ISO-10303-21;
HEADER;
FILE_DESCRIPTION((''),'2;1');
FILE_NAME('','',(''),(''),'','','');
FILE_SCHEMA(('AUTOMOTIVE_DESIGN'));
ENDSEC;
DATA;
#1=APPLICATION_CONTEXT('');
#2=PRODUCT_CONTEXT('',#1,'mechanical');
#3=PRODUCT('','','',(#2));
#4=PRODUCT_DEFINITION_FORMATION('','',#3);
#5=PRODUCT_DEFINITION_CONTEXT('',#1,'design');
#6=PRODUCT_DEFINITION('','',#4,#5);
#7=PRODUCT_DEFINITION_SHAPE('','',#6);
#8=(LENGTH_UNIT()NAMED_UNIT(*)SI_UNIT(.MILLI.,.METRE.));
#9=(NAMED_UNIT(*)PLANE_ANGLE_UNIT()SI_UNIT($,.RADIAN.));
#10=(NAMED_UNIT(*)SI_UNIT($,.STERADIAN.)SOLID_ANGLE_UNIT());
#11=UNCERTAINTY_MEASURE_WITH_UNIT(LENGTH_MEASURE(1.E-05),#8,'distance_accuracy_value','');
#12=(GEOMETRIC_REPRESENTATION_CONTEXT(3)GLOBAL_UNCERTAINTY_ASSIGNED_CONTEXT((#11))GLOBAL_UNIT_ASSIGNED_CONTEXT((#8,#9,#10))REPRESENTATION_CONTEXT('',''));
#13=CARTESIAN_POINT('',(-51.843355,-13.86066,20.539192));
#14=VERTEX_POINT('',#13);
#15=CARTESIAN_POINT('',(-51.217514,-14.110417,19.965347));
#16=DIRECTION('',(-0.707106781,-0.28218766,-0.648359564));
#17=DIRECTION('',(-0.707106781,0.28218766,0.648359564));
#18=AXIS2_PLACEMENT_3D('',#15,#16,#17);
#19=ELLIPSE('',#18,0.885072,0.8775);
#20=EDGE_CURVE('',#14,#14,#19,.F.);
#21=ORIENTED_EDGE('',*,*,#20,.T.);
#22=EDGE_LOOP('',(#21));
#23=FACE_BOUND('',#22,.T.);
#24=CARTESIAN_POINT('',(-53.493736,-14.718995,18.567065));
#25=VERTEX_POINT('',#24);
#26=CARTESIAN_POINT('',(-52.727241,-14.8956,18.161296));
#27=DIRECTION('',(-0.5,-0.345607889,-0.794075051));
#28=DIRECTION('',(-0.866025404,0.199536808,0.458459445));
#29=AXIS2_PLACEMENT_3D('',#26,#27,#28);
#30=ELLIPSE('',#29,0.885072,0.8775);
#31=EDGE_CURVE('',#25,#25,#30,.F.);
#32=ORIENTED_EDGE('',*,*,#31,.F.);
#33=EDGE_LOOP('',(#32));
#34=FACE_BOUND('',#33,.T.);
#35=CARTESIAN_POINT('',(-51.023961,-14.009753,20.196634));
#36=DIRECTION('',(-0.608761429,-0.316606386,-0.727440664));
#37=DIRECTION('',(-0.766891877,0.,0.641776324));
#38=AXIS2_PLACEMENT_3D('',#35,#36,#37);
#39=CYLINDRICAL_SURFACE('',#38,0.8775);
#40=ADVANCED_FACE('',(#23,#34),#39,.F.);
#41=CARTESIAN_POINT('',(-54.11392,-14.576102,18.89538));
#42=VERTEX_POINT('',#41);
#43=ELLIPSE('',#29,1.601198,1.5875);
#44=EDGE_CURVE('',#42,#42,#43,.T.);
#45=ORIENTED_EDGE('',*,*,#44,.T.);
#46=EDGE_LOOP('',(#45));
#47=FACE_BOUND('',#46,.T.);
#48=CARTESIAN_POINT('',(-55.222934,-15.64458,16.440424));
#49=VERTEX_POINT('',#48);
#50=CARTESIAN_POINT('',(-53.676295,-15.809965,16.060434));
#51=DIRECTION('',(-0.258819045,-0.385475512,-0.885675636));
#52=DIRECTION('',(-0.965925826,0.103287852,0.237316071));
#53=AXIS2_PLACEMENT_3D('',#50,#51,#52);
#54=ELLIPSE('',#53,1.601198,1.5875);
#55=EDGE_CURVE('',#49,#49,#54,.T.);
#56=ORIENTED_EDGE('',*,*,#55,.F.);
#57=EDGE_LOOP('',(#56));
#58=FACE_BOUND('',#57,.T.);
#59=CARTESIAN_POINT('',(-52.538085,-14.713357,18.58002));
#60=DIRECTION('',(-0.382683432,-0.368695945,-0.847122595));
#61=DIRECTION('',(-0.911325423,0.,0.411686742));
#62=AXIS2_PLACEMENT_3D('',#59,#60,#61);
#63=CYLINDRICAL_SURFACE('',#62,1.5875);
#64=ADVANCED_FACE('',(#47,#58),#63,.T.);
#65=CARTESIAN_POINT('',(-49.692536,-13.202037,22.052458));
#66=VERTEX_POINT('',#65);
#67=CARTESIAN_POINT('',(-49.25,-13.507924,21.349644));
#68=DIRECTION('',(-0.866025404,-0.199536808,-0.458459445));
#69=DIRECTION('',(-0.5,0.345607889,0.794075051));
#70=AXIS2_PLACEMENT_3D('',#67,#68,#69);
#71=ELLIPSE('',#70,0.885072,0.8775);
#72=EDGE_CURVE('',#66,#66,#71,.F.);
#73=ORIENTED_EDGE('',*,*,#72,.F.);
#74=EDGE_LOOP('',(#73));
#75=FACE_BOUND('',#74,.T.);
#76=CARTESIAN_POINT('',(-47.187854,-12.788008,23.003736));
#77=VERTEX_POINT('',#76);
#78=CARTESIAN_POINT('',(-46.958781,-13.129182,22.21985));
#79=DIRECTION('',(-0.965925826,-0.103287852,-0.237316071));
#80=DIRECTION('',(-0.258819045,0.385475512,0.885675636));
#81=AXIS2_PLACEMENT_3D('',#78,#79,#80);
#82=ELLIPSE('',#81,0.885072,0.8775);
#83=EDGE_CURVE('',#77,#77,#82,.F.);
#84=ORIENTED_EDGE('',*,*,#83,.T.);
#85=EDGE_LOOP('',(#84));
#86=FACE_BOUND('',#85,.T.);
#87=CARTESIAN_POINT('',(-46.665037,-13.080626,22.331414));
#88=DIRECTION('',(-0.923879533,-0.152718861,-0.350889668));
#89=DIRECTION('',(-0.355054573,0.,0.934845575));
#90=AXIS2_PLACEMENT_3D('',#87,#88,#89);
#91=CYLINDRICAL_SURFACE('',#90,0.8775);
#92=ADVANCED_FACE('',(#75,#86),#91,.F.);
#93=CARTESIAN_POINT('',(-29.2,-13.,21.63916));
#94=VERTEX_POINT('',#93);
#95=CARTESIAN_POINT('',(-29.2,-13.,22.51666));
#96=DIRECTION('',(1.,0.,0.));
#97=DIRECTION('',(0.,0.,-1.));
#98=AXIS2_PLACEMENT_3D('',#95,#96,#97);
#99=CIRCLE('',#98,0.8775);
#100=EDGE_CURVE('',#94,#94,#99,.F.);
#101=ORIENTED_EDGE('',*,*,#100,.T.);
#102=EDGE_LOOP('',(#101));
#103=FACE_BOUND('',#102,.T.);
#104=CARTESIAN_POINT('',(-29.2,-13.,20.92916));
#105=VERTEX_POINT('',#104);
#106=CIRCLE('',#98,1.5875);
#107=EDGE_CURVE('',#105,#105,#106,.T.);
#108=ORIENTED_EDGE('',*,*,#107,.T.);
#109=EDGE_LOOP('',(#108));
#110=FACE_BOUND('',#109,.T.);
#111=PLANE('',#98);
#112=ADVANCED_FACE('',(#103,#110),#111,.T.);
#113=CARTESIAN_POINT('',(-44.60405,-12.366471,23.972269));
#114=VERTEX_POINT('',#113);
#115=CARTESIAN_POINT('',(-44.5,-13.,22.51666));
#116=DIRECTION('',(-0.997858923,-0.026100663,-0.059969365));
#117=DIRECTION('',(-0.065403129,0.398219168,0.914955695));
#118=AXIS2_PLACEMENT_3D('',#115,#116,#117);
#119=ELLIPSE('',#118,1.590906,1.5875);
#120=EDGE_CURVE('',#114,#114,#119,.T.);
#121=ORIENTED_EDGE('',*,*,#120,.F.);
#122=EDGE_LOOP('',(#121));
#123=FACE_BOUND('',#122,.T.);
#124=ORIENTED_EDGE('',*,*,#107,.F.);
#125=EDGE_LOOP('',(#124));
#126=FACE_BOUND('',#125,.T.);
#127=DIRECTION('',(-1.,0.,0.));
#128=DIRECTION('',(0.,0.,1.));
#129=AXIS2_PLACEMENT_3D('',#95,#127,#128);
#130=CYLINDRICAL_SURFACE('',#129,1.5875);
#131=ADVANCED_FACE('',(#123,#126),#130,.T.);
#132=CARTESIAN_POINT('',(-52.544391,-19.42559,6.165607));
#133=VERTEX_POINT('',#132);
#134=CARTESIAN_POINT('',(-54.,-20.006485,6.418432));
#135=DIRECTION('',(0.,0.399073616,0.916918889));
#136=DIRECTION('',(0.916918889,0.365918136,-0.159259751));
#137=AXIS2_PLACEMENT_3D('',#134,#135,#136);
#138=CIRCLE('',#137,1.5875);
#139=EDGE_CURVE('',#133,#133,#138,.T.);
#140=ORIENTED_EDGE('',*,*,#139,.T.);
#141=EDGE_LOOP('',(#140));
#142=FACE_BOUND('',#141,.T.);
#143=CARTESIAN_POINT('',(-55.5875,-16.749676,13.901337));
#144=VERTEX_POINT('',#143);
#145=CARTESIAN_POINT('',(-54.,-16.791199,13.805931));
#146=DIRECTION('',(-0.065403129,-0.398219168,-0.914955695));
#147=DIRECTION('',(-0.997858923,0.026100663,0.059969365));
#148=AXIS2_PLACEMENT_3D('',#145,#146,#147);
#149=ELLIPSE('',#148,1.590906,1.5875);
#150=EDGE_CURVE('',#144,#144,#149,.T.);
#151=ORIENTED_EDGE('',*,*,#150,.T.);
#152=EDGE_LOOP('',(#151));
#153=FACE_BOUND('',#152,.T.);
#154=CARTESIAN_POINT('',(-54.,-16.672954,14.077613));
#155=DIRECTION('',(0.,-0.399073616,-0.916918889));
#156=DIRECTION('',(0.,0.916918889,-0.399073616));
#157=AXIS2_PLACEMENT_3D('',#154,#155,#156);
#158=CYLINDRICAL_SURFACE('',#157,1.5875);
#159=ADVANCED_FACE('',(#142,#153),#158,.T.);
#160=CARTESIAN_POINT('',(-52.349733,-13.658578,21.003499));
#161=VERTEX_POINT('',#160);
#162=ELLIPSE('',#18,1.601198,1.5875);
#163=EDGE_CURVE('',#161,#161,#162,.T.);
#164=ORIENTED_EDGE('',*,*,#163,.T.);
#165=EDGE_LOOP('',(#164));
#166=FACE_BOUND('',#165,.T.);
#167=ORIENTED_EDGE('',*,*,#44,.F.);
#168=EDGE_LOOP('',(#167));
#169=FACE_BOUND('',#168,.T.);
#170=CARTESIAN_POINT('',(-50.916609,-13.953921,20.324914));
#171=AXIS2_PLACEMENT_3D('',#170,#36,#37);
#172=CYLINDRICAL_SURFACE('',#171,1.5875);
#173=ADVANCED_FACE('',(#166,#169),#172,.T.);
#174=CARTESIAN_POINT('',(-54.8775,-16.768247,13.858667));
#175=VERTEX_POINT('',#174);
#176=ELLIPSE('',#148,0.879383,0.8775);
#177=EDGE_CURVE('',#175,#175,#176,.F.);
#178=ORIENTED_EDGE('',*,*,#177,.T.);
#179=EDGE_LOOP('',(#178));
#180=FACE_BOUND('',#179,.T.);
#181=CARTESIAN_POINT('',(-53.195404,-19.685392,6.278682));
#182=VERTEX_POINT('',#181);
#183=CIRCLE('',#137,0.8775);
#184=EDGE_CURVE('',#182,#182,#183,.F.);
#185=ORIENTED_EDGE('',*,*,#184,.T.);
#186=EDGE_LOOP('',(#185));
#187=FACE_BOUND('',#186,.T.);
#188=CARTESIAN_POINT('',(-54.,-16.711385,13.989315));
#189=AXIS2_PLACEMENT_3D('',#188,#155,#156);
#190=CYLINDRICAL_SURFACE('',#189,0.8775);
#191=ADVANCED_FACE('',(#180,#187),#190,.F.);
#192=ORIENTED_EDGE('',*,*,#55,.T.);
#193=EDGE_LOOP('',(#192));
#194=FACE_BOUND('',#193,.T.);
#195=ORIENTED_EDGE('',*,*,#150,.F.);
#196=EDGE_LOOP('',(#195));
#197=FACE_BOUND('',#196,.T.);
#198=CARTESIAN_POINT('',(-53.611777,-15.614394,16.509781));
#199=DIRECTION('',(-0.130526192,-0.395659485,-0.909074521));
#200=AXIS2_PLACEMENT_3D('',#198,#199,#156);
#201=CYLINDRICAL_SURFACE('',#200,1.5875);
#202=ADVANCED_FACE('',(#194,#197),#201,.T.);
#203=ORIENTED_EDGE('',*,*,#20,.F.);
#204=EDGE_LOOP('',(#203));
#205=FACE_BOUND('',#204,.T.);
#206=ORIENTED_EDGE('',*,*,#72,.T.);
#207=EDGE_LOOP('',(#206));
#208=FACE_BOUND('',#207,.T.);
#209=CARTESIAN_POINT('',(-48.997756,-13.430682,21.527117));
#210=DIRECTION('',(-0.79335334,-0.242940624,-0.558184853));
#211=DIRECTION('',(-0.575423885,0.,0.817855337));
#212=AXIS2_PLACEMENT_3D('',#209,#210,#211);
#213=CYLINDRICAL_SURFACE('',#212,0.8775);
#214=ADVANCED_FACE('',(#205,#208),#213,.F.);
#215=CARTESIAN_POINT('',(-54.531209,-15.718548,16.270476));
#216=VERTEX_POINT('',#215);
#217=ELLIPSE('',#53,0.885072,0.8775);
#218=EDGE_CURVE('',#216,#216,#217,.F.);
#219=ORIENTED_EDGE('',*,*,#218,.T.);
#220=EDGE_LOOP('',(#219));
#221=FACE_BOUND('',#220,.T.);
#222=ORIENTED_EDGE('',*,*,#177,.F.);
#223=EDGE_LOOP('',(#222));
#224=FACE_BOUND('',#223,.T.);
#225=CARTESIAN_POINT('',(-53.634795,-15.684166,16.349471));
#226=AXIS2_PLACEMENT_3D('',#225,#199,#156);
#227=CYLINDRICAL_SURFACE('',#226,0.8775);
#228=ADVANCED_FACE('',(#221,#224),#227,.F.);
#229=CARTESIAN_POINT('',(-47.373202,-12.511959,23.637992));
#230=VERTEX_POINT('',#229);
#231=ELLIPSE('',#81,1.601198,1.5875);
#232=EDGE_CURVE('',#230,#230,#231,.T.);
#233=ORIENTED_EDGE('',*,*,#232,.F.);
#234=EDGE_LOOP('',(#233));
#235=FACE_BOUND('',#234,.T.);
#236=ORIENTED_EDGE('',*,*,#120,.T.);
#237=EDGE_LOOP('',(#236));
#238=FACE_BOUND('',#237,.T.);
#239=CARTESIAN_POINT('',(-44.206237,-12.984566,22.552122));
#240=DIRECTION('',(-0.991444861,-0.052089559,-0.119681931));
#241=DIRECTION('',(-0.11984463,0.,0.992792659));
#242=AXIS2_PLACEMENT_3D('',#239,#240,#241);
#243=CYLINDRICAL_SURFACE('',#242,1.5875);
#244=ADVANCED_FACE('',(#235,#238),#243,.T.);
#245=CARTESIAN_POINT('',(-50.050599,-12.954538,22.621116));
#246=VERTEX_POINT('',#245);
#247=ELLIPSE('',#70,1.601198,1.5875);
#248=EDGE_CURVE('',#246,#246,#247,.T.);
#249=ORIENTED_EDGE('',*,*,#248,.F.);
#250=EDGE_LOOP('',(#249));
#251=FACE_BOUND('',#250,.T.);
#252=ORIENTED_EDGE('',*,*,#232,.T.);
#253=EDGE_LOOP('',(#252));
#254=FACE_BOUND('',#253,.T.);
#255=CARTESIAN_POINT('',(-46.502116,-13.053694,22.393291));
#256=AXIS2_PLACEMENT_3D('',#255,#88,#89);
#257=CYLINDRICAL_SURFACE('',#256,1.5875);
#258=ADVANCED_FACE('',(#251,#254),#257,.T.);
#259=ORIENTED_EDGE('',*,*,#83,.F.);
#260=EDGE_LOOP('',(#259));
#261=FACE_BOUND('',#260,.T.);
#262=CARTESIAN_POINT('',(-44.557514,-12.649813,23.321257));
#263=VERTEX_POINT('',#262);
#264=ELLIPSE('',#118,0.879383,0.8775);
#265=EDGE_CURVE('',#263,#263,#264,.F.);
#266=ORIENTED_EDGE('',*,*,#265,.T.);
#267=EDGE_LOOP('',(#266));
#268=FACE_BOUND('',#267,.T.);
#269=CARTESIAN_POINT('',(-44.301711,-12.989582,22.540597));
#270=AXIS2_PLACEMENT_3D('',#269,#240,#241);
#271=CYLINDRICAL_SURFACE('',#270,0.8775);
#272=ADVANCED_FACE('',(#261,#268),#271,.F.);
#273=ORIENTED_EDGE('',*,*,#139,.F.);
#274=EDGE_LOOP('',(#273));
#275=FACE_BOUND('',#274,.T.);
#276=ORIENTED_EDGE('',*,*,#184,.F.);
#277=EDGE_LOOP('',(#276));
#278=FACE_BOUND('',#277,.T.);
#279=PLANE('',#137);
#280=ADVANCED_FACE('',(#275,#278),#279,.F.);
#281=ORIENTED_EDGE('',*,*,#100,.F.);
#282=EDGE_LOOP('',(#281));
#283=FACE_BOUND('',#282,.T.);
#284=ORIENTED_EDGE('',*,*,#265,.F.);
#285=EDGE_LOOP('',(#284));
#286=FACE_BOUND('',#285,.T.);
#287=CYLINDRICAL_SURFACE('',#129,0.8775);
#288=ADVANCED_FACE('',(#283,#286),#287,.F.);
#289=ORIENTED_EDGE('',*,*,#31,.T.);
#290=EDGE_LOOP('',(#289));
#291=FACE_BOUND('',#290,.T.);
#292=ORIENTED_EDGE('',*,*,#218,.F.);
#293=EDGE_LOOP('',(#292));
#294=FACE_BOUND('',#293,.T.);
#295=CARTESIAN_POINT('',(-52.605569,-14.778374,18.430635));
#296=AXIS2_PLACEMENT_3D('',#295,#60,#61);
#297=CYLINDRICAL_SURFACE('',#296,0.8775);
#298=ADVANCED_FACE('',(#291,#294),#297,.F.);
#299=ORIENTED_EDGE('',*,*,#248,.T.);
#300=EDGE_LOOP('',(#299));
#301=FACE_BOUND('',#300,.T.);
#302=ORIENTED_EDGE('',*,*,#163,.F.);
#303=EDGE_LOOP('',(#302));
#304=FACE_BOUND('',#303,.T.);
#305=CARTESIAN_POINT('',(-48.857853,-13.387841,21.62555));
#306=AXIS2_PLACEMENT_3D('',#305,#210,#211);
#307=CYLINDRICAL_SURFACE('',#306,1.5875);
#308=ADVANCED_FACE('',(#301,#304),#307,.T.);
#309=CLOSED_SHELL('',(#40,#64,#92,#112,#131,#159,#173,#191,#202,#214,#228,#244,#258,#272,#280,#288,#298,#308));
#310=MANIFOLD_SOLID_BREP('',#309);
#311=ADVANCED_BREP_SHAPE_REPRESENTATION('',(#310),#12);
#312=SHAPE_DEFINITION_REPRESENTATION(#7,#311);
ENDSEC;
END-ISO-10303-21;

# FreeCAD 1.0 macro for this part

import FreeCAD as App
import Part
import Sketcher
from FreeCAD import Vector
Q = App.Units.Quantity

doc = App.newDocument("Part")
body = doc.addObject("PartDesign::Body", "Body")

# Sketch on YZ plane
sketch1 = doc.addObject("Sketcher::SketchObject", "Sketch")
body.addObject(sketch1)
sketch1.AttachmentSupport = (doc.YZ_Plane, [""])
sketch1.MapMode = "FlatFace"
sketch1.AttachmentOffset = App.Placement(Vector(0, 0, -29.2), App.Rotation())
sketch1.addGeometry([
    Part.Circle(Vector(-13, 22.5, 0), Vector(0, 0, 1), 1.6),
    Part.Circle(Vector(-13, 22.5, 0), Vector(0, 0, 1), 0.9),
], False)
sketch1.addConstraint([
    Sketcher.Constraint("Coincident", 1, 3, 0, 3),
    Sketcher.Constraint("Diameter", 0, Q("3.175 mm")),
    Sketcher.Constraint("Diameter", 1, Q("1.755 mm")),
    Sketcher.Constraint("DistanceX", 0, 3, -1, 1, Q("13 mm")),
    Sketcher.Constraint("DistanceY", -1, 1, 0, 3, Q("22.51666 mm")),
])

# Sketch on an angled plane
sketch2 = doc.addObject("Sketcher::SketchObject", "Sketch001")
body.addObject(sketch2)
sketch2.Placement = App.Placement(Vector(0, -19.168878, 8.342934), App.Rotation(Vector(0, -0.399073615, -0.916918889), Vector(0.999999999, 0, 0), Vector(0, -0.916918889, 0.399073615), "ZXY"))
sketch2.addGeometry([
    Part.LineSegment(Vector(-15.5, -29.2, 0), Vector(-15.5, -44.5, 0)),  # 0
    Part.LineSegment(Vector(-15.5, -44.5, 0), Vector(-15.1, -47, 0)),  # 1
    Part.LineSegment(Vector(-15.1, -47, 0), Vector(-14.2, -49.2, 0)),  # 2
    Part.LineSegment(Vector(-14.2, -49.2, 0), Vector(-12.7, -51.2, 0)),  # 3
    Part.LineSegment(Vector(-12.7, -51.2, 0), Vector(-10.7, -52.7, 0)),  # 4
    Part.LineSegment(Vector(-10.7, -52.7, 0), Vector(-8.4, -53.7, 0)),  # 5
    Part.LineSegment(Vector(-8.4, -53.7, 0), Vector(-6, -54, 0)),  # 6
    Part.LineSegment(Vector(-6, -54, 0), Vector(2.1, -54, 0)),  # 7
], False)
sketch2.addConstraint([
    Sketcher.Constraint("Coincident", 0, 2, 1, 1),
    Sketcher.Constraint("Coincident", 1, 2, 2, 1),
    Sketcher.Constraint("Coincident", 2, 2, 3, 1),
    Sketcher.Constraint("Coincident", 3, 2, 4, 1),
    Sketcher.Constraint("Coincident", 4, 2, 5, 1),
    Sketcher.Constraint("Coincident", 5, 2, 6, 1),
    Sketcher.Constraint("Coincident", 6, 2, 7, 1),
    Sketcher.Constraint("Vertical", 0),
    Sketcher.Constraint("Horizontal", 7),
    Sketcher.Constraint("Equal", 1, 2),
    Sketcher.Constraint("Equal", 2, 3),
    Sketcher.Constraint("Equal", 3, 4),
    Sketcher.Constraint("Equal", 4, 5),
    Sketcher.Constraint("Equal", 5, 6),
    Sketcher.Constraint("DistanceY", 0, 2, 0, 1, Q("15.3 mm")),
    Sketcher.Constraint("DistanceY", 6, 2, -1, 1, Q("54 mm")),
    Sketcher.Constraint("Angle", 1, Q("-82.5 deg")),
    Sketcher.Constraint("Angle", 2, Q("-67.5 deg")),
    Sketcher.Constraint("Angle", 3, Q("-52.5 deg")),
    Sketcher.Constraint("Angle", 4, Q("-37.5 deg")),
    Sketcher.Constraint("Angle", 5, Q("-22.5 deg")),
    Sketcher.Constraint("Angle", 6, Q("-7.5 deg")),
    Sketcher.Constraint("DistanceY", 0, 1, -1, 1, Q("29.2 mm")),
    Sketcher.Constraint("DistanceX", 7, 1, 7, 2, Q("8.056873 mm")),
    Sketcher.Constraint("DistanceX", 1, 2, -1, 1, Q("15.13429 mm")),
])
doc.recompute()

additivepipe = doc.addObject("PartDesign::AdditivePipe", "AdditivePipe")
body.addObject(additivepipe)
additivepipe.Profile = sketch1
additivepipe.Spine = (sketch2, ["Edge1", "Edge2", "Edge3", "Edge4", "Edge5", "Edge6", "Edge7", "Edge8"])
additivepipe.Transition = "Right corner"

doc.recompute()
